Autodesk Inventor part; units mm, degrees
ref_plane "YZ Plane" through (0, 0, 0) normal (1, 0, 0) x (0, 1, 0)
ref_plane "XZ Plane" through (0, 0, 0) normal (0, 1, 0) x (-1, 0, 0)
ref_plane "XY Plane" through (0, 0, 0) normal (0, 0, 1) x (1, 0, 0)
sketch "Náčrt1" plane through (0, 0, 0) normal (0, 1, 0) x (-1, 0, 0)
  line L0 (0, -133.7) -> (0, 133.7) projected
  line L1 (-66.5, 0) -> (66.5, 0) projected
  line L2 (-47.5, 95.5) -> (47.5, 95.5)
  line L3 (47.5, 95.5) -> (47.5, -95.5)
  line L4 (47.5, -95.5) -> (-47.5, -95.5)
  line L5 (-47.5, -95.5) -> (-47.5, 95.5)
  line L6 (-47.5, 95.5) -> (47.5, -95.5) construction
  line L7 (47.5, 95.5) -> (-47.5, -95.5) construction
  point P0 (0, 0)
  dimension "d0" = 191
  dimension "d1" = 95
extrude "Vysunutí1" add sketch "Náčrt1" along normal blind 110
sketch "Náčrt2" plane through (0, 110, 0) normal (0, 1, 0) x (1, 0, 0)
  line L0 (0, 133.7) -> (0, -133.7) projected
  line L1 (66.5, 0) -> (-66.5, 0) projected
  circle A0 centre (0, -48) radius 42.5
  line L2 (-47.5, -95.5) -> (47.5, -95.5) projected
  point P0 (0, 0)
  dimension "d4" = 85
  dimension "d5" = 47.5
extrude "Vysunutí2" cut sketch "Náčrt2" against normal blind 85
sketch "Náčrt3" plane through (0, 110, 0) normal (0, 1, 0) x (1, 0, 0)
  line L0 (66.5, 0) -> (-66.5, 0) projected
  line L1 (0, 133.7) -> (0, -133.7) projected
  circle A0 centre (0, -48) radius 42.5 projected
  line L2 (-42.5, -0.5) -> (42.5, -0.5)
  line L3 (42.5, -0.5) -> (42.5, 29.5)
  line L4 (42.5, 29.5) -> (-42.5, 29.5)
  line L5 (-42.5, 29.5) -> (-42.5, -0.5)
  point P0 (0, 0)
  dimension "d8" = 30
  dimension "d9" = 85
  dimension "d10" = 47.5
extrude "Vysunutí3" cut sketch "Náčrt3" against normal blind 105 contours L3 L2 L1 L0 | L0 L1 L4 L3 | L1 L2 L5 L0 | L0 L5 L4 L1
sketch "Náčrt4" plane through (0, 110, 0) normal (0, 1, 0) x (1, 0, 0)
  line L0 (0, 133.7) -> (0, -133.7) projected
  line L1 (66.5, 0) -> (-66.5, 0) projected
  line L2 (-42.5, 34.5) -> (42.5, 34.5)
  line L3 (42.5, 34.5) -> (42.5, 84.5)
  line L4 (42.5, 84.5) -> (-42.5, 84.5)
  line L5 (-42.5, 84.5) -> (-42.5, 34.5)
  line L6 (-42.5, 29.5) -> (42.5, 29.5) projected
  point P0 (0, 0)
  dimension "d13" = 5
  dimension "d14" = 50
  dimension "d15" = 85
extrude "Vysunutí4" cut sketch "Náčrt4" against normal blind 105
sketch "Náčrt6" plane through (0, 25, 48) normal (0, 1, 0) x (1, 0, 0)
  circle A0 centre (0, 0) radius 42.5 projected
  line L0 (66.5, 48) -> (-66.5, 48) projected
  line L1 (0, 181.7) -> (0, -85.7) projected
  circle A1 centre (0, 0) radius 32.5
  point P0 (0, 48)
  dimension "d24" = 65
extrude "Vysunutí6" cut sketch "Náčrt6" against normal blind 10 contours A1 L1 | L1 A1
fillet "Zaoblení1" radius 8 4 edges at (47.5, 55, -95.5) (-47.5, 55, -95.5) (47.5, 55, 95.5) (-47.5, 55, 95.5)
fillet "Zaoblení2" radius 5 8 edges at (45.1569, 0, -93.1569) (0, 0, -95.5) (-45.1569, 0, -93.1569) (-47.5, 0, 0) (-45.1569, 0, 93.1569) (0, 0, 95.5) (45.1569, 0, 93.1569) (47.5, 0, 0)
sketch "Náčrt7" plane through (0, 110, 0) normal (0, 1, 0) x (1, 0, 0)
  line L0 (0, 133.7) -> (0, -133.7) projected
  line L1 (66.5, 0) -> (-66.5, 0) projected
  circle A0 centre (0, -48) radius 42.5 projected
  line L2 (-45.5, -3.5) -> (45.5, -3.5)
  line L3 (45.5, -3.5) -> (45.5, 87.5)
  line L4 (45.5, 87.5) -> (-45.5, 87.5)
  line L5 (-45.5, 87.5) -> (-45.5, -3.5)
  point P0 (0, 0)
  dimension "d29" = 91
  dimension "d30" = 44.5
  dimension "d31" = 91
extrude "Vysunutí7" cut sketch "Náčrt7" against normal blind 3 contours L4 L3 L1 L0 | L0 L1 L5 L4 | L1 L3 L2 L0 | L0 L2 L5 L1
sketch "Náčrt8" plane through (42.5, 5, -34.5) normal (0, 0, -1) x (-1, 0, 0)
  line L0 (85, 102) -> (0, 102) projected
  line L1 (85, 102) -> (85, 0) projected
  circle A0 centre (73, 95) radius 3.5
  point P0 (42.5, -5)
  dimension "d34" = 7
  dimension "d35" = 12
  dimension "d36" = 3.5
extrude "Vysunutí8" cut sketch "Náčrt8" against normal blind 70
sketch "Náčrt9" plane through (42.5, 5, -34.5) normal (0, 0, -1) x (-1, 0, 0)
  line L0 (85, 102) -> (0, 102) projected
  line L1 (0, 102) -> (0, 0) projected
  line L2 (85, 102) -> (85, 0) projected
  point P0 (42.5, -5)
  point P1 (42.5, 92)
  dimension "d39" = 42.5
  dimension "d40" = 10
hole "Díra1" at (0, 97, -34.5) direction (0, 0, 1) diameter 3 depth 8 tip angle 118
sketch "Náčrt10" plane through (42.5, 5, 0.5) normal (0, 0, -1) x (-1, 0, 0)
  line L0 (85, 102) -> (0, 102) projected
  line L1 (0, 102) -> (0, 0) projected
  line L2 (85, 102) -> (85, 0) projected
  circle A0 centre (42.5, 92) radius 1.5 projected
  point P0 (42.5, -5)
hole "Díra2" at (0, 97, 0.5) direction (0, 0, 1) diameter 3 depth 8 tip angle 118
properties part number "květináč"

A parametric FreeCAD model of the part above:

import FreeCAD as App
import Part
import Sketcher


def edges_at(feature, points):
    """Names of the edges that pass closest to the given points."""
    edges = feature.Shape.Edges
    near = lambda p: min(range(len(edges)), key=lambda i: edges[i].distToShape(Part.Vertex(*p))[0])
    return sorted({f"Edge{near(p) + 1}" for p in points})


def add_polygon(sketch, points):
    """Adds a closed chain of lines whose ends are joined by coincident constraints."""
    first, n = sketch.GeometryCount, len(points)
    for a, b in zip(points, points[1:] + points[:1]):
        sketch.addGeometry(Part.LineSegment(App.Vector(*a, 0), App.Vector(*b, 0)), False)
    for i in range(n):
        sketch.addConstraint(Sketcher.Constraint("Coincident", first + i, 2, first + (i + 1) % n, 1))

doc = App.newDocument("Part")
params = doc.addObject("Spreadsheet::Sheet", "Params")
for row, (alias, value) in enumerate([
    ("sketch1_width", "95 mm"),
    ("sketch1_height", "191 mm"),
    ("pad1_length", "110 mm"),
    ("sketch2_diameter", "85 mm"),
    ("pocket1_length", "85 mm"),
    ("sketch3_width", "85 mm"),
    ("sketch3_height", "30 mm"),
    ("pocket2_length", "105 mm"),
    ("sketch4_width", "85 mm"),
    ("sketch4_height", "50 mm"),
    ("pocket3_length", "105 mm"),
    ("sketch5_diameter", "65 mm"),
    ("pocket4_length", "10 mm"),
    ("fillet_radius", "8 mm"),
    ("fillet2_radius", "5 mm"),
    ("sketch6_width", "91 mm"),
    ("pocket5_length", "3 mm"),
    ("sketch7_diameter", "7 mm"),
    ("pocket6_length", "70 mm"),
    ("sketch8_diameter", "3 mm"),
    ("hole_diameter", "3 mm"),
    ("hole_depth", "8 mm"),
    ("sketch9_diameter", "3 mm"),
    ("hole2_diameter", "3 mm"),
    ("hole2_depth", "8 mm"),
], start=1):
    params.set(f"A{row}", alias)
    params.set(f"B{row}", "=" + value)
    params.setAlias(f"B{row}", alias)

body = doc.addObject("PartDesign::Body", "Body")

# Sketch on XZ plane
sketch1 = doc.addObject("Sketcher::SketchObject", "Sketch")
body.addObject(sketch1)
sketch1.AttachmentSupport = (doc.XZ_Plane, [""])
sketch1.MapMode = "FlatFace"
add_polygon(sketch1, [(48, -96), (-48, -96), (-48, 96), (48, 96)])  # lines 0-3
sketch1.addConstraint([
    Sketcher.Constraint("Horizontal", 0),
    Sketcher.Constraint("Vertical", 1),
    Sketcher.Constraint("Horizontal", 2),
    Sketcher.Constraint("Vertical", 3),
    Sketcher.Constraint("Symmetric", 0, 2, 2, 2, -1, 1),
    Sketcher.Constraint("DistanceX", 0, 2, 0, 1, 95.0),
    Sketcher.Constraint("DistanceY", 1, 1, 1, 2, 191.0),
])
sketch1.setExpression("Constraints[9]", "Params.sketch1_width")
sketch1.setExpression("Constraints[10]", "Params.sketch1_height")
pad1 = doc.addObject("PartDesign::Pad", "Pad")
body.addObject(pad1)
pad1.Profile = sketch1
pad1.setExpression("Length", "Params.pad1_length")
pad1.Reversed = True

# Sketch on XZ plane
sketch2 = doc.addObject("Sketcher::SketchObject", "Sketch001")
body.addObject(sketch2)
sketch2.AttachmentSupport = (doc.XZ_Plane, [""])
sketch2.MapMode = "FlatFace"
sketch2.AttachmentOffset = App.Placement(App.Vector(0, 0, -110), App.Rotation())
sketch2.addGeometry(Part.Circle(App.Vector(0, 48, 0), App.Vector(0, 0, 1), 42), False)
sketch2.addConstraint([
    Sketcher.Constraint("PointOnObject", 0, 3, -2),
    Sketcher.Constraint("Diameter", 0, 85.0),
    Sketcher.Constraint("DistanceY", -1, 1, 0, 3, 48.0),
])
sketch2.setExpression("Constraints[1]", "Params.sketch2_diameter")
pocket1 = doc.addObject("PartDesign::Pocket", "Pocket")
body.addObject(pocket1)
pocket1.Profile = sketch2
pocket1.setExpression("Length", "Params.pocket1_length")
pocket1.Reversed = True

# Sketch on XZ plane
sketch3 = doc.addObject("Sketcher::SketchObject", "Sketch002")
body.addObject(sketch3)
sketch3.AttachmentSupport = (doc.XZ_Plane, [""])
sketch3.MapMode = "FlatFace"
sketch3.AttachmentOffset = App.Placement(App.Vector(0, 0, -110), App.Rotation())
add_polygon(sketch3, [(42, 0), (42, -30), (-42, -30), (-42, 0)])  # lines 0-3
sketch3.addConstraint([
    Sketcher.Constraint("Vertical", 0),
    Sketcher.Constraint("Horizontal", 1),
    Sketcher.Constraint("Vertical", 2),
    Sketcher.Constraint("Horizontal", 3),
    Sketcher.Constraint("DistanceX", 1, 2, 1, 1, 85.0),
    Sketcher.Constraint("DistanceY", 0, 2, 0, 1, 30.0),
    Sketcher.Constraint("DistanceX", -1, 1, 0, 2, 42.5),
    Sketcher.Constraint("DistanceY", 0, 2, -1, 1, 29.5),
])
sketch3.setExpression("Constraints[8]", "Params.sketch3_width")
sketch3.setExpression("Constraints[9]", "Params.sketch3_height")
pocket2 = doc.addObject("PartDesign::Pocket", "Pocket001")
body.addObject(pocket2)
pocket2.Profile = sketch3
pocket2.setExpression("Length", "Params.pocket2_length")
pocket2.Reversed = True

# Sketch on XZ plane
sketch4 = doc.addObject("Sketcher::SketchObject", "Sketch003")
body.addObject(sketch4)
sketch4.AttachmentSupport = (doc.XZ_Plane, [""])
sketch4.MapMode = "FlatFace"
sketch4.AttachmentOffset = App.Placement(App.Vector(0, 0, -110), App.Rotation())
add_polygon(sketch4, [(42, -84), (-42, -84), (-42, -34), (42, -34)])  # lines 0-3
sketch4.addConstraint([
    Sketcher.Constraint("Horizontal", 0),
    Sketcher.Constraint("Vertical", 1),
    Sketcher.Constraint("Horizontal", 2),
    Sketcher.Constraint("Vertical", 3),
    Sketcher.Constraint("DistanceX", 0, 2, 0, 1, 85.0),
    Sketcher.Constraint("DistanceY", 1, 1, 1, 2, 50.0),
    Sketcher.Constraint("DistanceX", 0, 2, -1, 1, 42.5),
    Sketcher.Constraint("DistanceY", 0, 2, -1, 1, 84.5),
])
sketch4.setExpression("Constraints[8]", "Params.sketch4_width")
sketch4.setExpression("Constraints[9]", "Params.sketch4_height")
pocket3 = doc.addObject("PartDesign::Pocket", "Pocket002")
body.addObject(pocket3)
pocket3.Profile = sketch4
pocket3.setExpression("Length", "Params.pocket3_length")
pocket3.Reversed = True

# Sketch on XZ plane
sketch5 = doc.addObject("Sketcher::SketchObject", "Sketch004")
body.addObject(sketch5)
sketch5.AttachmentSupport = (doc.XZ_Plane, [""])
sketch5.MapMode = "FlatFace"
sketch5.AttachmentOffset = App.Placement(App.Vector(0, 0, -25), App.Rotation())
sketch5.addGeometry(Part.Circle(App.Vector(0, 48, 0), App.Vector(0, 0, 1), 32), False)
sketch5.addConstraint([
    Sketcher.Constraint("PointOnObject", 0, 3, -2),
    Sketcher.Constraint("Diameter", 0, 65.0),
    Sketcher.Constraint("DistanceY", -1, 1, 0, 3, 48.0),
])
sketch5.setExpression("Constraints[1]", "Params.sketch5_diameter")
pocket4 = doc.addObject("PartDesign::Pocket", "Pocket003")
body.addObject(pocket4)
pocket4.Profile = sketch5
pocket4.setExpression("Length", "Params.pocket4_length")
pocket4.Reversed = True
doc.recompute()

fillet = doc.addObject("PartDesign::Fillet", "Fillet")
body.addObject(fillet)
fillet.Base = (pocket4, edges_at(pocket4, [
    (47.5, 55, -95.5),
    (-47.5, 55, -95.5),
    (47.5, 55, 95.5),
    (-47.5, 55, 95.5),
]))
fillet.setExpression("Radius", "Params.fillet_radius")
doc.recompute()

fillet2 = doc.addObject("PartDesign::Fillet", "Fillet001")
body.addObject(fillet2)
fillet2.Base = (fillet, edges_at(fillet, [
    (45.157, 0, -93.157),
    (0, 0, -95.5),
    (-45.157, 0, -93.157),
    (-47.5, 0, 0),
    (-45.157, 0, 93.157),
    (0, 0, 95.5),
    (45.157, 0, 93.157),
    (47.5, 0, 0),
]))
fillet2.setExpression("Radius", "Params.fillet2_radius")

# Sketch on XZ plane
sketch6 = doc.addObject("Sketcher::SketchObject", "Sketch005")
body.addObject(sketch6)
sketch6.AttachmentSupport = (doc.XZ_Plane, [""])
sketch6.MapMode = "FlatFace"
sketch6.AttachmentOffset = App.Placement(App.Vector(0, 0, -110), App.Rotation())
add_polygon(sketch6, [(46, -88), (-46, -88), (-46, 4), (46, 4)])  # lines 0-3
sketch6.addConstraint([
    Sketcher.Constraint("Horizontal", 0),
    Sketcher.Constraint("Vertical", 1),
    Sketcher.Constraint("Horizontal", 2),
    Sketcher.Constraint("Vertical", 3),
    Sketcher.Constraint("Equal", 2, 1),
    Sketcher.Constraint("DistanceX", 0, 2, 0, 1, 91.0),
    Sketcher.Constraint("DistanceX", 0, 2, -1, 1, 45.5),
    Sketcher.Constraint("DistanceY", 0, 2, -1, 1, 87.5),
])
sketch6.setExpression("Constraints[9]", "Params.sketch6_width")
pocket5 = doc.addObject("PartDesign::Pocket", "Pocket004")
body.addObject(pocket5)
pocket5.Profile = sketch6
pocket5.setExpression("Length", "Params.pocket5_length")
pocket5.Reversed = True

# Sketch on XY plane
sketch7 = doc.addObject("Sketcher::SketchObject", "Sketch006")
body.addObject(sketch7)
sketch7.AttachmentSupport = (doc.XY_Plane, [""])
sketch7.MapMode = "FlatFace"
sketch7.AttachmentOffset = App.Placement(App.Vector(0, 0, -34.5), App.Rotation())
sketch7.addGeometry(Part.Circle(App.Vector(-30.5, 100, 0), App.Vector(0, 0, 1), 3.5), False)
sketch7.addConstraint([
    Sketcher.Constraint("Diameter", 0, 7.0),
    Sketcher.Constraint("DistanceY", -1, 1, 0, 3, 100.0),
    Sketcher.Constraint("DistanceX", 0, 3, -1, 1, 30.5),
])
sketch7.setExpression("Constraints[0]", "Params.sketch7_diameter")
pocket6 = doc.addObject("PartDesign::Pocket", "Pocket005")
body.addObject(pocket6)
pocket6.Profile = sketch7
pocket6.setExpression("Length", "Params.pocket6_length")
pocket6.Reversed = True

# Sketch on XY plane
sketch8 = doc.addObject("Sketcher::SketchObject", "Sketch007")
body.addObject(sketch8)
sketch8.AttachmentSupport = (doc.XY_Plane, [""])
sketch8.MapMode = "FlatFace"
sketch8.AttachmentOffset = App.Placement(App.Vector(0, 0, -34.5), App.Rotation())
sketch8.addGeometry(Part.Circle(App.Vector(0, 97, 0), App.Vector(0, 0, 1), 1.5), False)
sketch8.addConstraint([
    Sketcher.Constraint("PointOnObject", 0, 3, -2),
    Sketcher.Constraint("Diameter", 0, 3.0),
    Sketcher.Constraint("DistanceY", -1, 1, 0, 3, 97.0),
])
sketch8.setExpression("Constraints[1]", "Params.sketch8_diameter")
doc.recompute()
hole = doc.addObject("PartDesign::Hole", "Hole")
body.addObject(hole)
hole.Profile = sketch8
hole.ThreadType = "None"
hole.setExpression("Diameter", "Params.hole_diameter")
hole.DepthType = "Dimension"
hole.setExpression("Depth", "Params.hole_depth")
hole.DrillPoint = "Angled"
hole.DrillPointAngle = 118
hole.Reversed = True

# Sketch on XY plane
sketch9 = doc.addObject("Sketcher::SketchObject", "Sketch008")
body.addObject(sketch9)
sketch9.AttachmentSupport = (doc.XY_Plane, [""])
sketch9.MapMode = "FlatFace"
sketch9.AttachmentOffset = App.Placement(App.Vector(0, 0, 0.5), App.Rotation())
sketch9.addGeometry(Part.Circle(App.Vector(0, 97, 0), App.Vector(0, 0, 1), 1.5), False)
sketch9.addConstraint([
    Sketcher.Constraint("PointOnObject", 0, 3, -2),
    Sketcher.Constraint("Diameter", 0, 3.0),
    Sketcher.Constraint("DistanceY", -1, 1, 0, 3, 97.0),
])
sketch9.setExpression("Constraints[1]", "Params.sketch9_diameter")
doc.recompute()
hole2 = doc.addObject("PartDesign::Hole", "Hole001")
body.addObject(hole2)
hole2.Profile = sketch9
hole2.ThreadType = "None"
hole2.setExpression("Diameter", "Params.hole2_diameter")
hole2.DepthType = "Dimension"
hole2.setExpression("Depth", "Params.hole2_depth")
hole2.DrillPoint = "Angled"
hole2.DrillPointAngle = 118
hole2.Reversed = True

doc.recompute()
